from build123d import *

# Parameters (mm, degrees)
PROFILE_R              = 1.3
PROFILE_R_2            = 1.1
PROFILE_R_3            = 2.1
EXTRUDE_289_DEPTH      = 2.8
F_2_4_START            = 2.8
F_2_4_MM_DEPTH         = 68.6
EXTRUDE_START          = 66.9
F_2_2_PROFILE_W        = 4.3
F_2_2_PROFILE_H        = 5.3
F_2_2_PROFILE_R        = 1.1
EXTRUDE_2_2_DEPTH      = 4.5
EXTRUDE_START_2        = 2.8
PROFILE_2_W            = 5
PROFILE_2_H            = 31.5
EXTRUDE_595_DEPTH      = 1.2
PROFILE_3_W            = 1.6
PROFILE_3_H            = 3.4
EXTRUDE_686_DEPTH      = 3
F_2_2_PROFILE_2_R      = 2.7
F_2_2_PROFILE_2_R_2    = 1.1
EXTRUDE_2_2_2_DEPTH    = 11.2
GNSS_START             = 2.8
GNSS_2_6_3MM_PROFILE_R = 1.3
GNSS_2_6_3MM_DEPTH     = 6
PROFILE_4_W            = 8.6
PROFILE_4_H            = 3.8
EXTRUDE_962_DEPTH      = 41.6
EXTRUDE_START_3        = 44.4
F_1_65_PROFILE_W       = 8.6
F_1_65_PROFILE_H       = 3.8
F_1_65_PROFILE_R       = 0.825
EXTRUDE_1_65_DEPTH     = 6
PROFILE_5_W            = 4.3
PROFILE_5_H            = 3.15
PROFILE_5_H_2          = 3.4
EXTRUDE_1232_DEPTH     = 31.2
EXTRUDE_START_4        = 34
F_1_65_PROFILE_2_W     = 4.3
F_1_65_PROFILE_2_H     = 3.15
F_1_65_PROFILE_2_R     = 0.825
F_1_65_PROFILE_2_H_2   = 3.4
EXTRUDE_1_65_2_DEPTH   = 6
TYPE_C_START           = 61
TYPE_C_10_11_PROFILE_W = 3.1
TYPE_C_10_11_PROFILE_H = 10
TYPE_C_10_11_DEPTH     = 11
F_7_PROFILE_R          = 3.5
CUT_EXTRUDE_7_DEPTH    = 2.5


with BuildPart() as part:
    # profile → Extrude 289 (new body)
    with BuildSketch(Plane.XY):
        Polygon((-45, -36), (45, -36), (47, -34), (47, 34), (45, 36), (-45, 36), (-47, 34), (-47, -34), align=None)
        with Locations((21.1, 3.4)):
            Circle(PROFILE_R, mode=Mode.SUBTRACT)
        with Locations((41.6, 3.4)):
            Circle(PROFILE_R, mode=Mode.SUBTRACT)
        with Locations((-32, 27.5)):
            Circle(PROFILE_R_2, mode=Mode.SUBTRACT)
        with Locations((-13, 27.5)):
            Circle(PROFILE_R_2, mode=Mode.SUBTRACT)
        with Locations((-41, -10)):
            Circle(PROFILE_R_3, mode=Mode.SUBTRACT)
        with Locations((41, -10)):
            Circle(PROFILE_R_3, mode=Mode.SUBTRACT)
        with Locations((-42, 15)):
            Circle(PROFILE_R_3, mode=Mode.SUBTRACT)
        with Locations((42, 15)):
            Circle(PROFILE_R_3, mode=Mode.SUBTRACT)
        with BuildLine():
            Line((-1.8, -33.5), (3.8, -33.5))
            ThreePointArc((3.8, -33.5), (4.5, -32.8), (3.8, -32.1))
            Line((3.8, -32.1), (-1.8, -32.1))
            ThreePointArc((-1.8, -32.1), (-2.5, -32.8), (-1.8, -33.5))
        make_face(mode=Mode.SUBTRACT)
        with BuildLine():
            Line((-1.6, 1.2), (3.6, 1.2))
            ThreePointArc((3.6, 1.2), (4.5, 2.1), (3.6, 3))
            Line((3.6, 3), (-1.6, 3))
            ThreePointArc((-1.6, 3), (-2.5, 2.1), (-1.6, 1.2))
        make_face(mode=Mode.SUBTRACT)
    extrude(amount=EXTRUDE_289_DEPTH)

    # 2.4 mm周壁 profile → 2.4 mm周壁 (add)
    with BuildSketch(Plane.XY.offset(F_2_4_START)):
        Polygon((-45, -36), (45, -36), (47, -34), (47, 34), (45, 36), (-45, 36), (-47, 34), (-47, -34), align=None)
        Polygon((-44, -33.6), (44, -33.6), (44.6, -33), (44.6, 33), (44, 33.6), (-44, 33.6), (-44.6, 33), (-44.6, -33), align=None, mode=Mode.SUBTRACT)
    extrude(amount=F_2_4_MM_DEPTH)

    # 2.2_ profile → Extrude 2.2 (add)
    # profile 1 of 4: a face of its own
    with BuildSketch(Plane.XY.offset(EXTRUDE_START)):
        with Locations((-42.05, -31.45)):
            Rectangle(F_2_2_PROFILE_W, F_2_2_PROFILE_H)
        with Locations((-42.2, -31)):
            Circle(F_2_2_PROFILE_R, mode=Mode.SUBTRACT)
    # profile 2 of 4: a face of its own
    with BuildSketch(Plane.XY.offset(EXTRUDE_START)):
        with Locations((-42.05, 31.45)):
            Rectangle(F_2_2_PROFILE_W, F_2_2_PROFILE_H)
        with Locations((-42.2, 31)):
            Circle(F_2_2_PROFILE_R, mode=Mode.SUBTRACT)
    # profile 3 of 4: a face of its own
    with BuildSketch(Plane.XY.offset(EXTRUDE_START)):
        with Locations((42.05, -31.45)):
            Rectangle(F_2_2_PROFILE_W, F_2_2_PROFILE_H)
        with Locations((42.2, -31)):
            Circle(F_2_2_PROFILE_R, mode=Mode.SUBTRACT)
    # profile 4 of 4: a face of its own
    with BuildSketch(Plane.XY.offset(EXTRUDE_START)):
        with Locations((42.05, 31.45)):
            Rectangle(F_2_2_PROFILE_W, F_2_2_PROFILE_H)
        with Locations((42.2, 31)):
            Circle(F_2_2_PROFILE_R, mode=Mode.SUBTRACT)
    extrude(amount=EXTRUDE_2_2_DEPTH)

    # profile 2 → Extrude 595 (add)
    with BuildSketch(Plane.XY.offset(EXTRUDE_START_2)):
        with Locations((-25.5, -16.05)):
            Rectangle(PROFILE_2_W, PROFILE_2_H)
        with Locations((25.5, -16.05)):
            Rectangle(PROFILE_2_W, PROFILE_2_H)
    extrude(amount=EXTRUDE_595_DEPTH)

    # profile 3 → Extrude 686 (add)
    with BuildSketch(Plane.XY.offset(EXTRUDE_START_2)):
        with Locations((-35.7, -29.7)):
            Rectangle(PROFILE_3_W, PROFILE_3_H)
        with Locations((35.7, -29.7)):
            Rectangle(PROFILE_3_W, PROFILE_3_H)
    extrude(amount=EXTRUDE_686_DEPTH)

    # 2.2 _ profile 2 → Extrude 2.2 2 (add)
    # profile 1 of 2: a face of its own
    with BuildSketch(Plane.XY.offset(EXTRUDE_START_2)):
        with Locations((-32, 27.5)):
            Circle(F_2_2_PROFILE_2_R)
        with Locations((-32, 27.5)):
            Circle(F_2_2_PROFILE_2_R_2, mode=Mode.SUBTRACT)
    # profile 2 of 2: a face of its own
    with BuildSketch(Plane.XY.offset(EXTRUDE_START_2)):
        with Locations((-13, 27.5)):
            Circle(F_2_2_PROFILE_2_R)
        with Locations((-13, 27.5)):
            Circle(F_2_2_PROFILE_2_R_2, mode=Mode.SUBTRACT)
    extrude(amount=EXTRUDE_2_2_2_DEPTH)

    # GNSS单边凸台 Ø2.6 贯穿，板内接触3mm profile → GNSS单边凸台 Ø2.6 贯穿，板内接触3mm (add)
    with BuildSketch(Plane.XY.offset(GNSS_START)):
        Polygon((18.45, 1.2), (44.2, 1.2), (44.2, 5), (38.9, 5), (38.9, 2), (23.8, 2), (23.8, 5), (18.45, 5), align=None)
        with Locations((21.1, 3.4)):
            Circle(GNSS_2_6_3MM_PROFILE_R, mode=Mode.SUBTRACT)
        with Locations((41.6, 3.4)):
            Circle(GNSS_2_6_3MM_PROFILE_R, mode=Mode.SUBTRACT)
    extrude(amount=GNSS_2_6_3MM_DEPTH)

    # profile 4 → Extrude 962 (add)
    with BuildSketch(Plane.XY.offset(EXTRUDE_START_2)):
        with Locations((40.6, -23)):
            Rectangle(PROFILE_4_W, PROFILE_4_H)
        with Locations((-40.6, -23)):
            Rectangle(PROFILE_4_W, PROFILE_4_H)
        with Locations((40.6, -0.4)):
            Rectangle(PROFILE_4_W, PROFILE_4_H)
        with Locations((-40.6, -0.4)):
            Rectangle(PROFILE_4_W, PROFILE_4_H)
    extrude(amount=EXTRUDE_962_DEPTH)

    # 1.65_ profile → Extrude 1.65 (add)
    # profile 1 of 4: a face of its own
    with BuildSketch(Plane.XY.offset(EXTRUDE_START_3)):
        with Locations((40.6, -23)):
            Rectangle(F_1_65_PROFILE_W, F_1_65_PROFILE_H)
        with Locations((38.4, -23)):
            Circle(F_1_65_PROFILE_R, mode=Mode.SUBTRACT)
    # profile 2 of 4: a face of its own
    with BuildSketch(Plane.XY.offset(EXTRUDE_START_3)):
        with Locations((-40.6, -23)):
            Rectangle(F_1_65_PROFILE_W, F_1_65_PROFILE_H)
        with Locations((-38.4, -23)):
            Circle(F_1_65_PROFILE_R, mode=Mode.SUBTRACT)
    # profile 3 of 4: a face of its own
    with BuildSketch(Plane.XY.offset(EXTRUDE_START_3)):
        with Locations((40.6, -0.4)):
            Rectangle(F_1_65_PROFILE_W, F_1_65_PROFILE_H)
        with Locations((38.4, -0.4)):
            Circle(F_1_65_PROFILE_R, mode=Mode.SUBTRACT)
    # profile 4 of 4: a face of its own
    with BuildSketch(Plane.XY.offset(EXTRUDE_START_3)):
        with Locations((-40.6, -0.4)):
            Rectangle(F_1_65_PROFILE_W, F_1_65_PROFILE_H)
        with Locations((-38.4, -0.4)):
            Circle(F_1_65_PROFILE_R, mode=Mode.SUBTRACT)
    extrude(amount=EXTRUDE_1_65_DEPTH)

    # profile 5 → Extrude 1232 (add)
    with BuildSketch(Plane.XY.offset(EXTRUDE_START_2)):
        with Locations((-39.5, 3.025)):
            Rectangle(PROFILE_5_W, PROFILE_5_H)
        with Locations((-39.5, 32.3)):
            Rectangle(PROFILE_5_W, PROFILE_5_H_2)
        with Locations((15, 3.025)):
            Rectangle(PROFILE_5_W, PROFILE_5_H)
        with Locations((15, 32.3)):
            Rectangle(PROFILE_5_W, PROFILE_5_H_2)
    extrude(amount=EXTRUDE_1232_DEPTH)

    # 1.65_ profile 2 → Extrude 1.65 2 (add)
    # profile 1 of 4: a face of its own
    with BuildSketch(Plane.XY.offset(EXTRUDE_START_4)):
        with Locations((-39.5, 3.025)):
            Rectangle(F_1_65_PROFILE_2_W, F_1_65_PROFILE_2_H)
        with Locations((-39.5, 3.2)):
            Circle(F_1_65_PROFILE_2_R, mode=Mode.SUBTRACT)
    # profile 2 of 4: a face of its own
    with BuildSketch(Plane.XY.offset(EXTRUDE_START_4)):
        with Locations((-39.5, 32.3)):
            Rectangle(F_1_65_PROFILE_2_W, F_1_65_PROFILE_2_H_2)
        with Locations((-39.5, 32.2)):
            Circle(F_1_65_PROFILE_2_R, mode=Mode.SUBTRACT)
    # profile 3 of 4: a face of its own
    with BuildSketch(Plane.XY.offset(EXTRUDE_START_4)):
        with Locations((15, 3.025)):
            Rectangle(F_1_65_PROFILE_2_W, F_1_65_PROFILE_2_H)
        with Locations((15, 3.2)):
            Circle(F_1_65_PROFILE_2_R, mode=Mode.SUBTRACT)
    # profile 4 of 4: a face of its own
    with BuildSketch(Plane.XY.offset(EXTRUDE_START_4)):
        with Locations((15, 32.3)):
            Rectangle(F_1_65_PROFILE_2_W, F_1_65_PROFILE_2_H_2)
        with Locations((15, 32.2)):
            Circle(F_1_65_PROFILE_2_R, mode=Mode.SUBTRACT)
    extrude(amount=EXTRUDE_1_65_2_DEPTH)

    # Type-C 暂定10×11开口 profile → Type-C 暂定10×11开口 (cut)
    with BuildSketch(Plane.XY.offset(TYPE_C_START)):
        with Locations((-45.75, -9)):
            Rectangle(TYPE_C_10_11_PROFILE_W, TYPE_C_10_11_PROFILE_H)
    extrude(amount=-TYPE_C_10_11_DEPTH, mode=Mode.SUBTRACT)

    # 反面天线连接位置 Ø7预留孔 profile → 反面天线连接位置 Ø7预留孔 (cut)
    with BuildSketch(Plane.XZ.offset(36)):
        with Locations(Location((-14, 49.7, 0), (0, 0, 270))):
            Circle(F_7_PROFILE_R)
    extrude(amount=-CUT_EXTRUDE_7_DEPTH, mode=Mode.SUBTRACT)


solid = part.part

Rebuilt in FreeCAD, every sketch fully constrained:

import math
import FreeCAD as App
import Part
import Sketcher

V = App.Vector


def add_polygon(sketch, points):
    """Adds a closed chain of lines whose ends are joined by coincident constraints."""
    first, n = sketch.GeometryCount, len(points)
    for a, b in zip(points, points[1:] + points[:1]):
        sketch.addGeometry(Part.LineSegment(App.Vector(*a, 0), App.Vector(*b, 0)), False)
    for i in range(n):
        sketch.addConstraint(Sketcher.Constraint("Coincident", first + i, 2, first + (i + 1) % n, 1))

doc = App.newDocument("Part")
body = doc.addObject("PartDesign::Body", "Body")

# Sketch on XY plane
sketch1 = body.newObject("Sketcher::SketchObject", "Sketch")
sketch1.AttachmentSupport = (doc.getObject("XY_Plane"), [""])
sketch1.MapMode = "FlatFace"
add_polygon(sketch1, [(-45, -36), (45, -36), (47, -34), (47, 34), (45, 36), (-45, 36), (-47, 34), (-47, -34)])  # lines 0-7
sketch1.addGeometry(Part.Circle(V(-41, -10, 0), V(0, 0, 1), 2.1), False)  # 8
sketch1.addGeometry(Part.LineSegment(V(3.8, -33.5, 0), V(-1.8, -33.5, 0)), False)  # 9
sketch1.addGeometry(Part.ArcOfCircle(Part.Circle(V(-1.8, -32.8, 0), V(0, 0, 1), 0.7), math.radians(90), math.radians(270)), False)  # 10
sketch1.addGeometry(Part.LineSegment(V(-1.8, -32.1, 0), V(3.8, -32.1, 0)), False)  # 11
sketch1.addGeometry(Part.ArcOfCircle(Part.Circle(V(3.8, -32.8, 0), V(0, 0, 1), 0.7), math.radians(-90), math.radians(90)), False)  # 12
sketch1.addGeometry(Part.Circle(V(41, -10, 0), V(0, 0, 1), 2.1), False)  # 13
sketch1.addGeometry(Part.Circle(V(-42, 15, 0), V(0, 0, 1), 2.1), False)  # 14
sketch1.addGeometry(Part.Circle(V(-32, 27.5, 0), V(0, 0, 1), 1.1), False)  # 15
sketch1.addGeometry(Part.Circle(V(-13, 27.5, 0), V(0, 0, 1), 1.1), False)  # 16
sketch1.addGeometry(Part.LineSegment(V(3.6, 1.2, 0), V(-1.6, 1.2, 0)), False)  # 17
sketch1.addGeometry(Part.ArcOfCircle(Part.Circle(V(-1.6, 2.1, 0), V(0, 0, 1), 0.9), math.radians(90), math.radians(270)), False)  # 18
sketch1.addGeometry(Part.LineSegment(V(-1.6, 3, 0), V(3.6, 3, 0)), False)  # 19
sketch1.addGeometry(Part.ArcOfCircle(Part.Circle(V(3.6, 2.1, 0), V(0, 0, 1), 0.9), math.radians(-90), math.radians(90)), False)  # 20
sketch1.addGeometry(Part.Circle(V(21.1, 3.4, 0), V(0, 0, 1), 1.3), False)  # 21
sketch1.addGeometry(Part.Circle(V(41.6, 3.4, 0), V(0, 0, 1), 1.3), False)  # 22
sketch1.addGeometry(Part.Circle(V(42, 15, 0), V(0, 0, 1), 2.1), False)  # 23
sketch1.addConstraint([
    Sketcher.Constraint("Tangent", 9, 2, 10, 2),
    Sketcher.Constraint("Tangent", 10, 1, 11, 1),
    Sketcher.Constraint("Tangent", 11, 2, 12, 2),
    Sketcher.Constraint("Tangent", 12, 1, 9, 1),
    Sketcher.Constraint("Tangent", 17, 2, 18, 2),
    Sketcher.Constraint("Tangent", 18, 1, 19, 1),
    Sketcher.Constraint("Tangent", 19, 2, 20, 2),
    Sketcher.Constraint("Tangent", 20, 1, 17, 1),
    Sketcher.Constraint("Horizontal", 0),
    Sketcher.Constraint("Vertical", 2),
    Sketcher.Constraint("Horizontal", 4),
    Sketcher.Constraint("Vertical", 6),
    Sketcher.Constraint("Horizontal", 9),
    Sketcher.Constraint("Horizontal", 11),
    Sketcher.Constraint("Horizontal", 17),
    Sketcher.Constraint("Horizontal", 19),
    Sketcher.Constraint("Equal", 8, 13),
    Sketcher.Constraint("Equal", 13, 14),
    Sketcher.Constraint("Equal", 15, 16),
    Sketcher.Constraint("Equal", 21, 22),
    Sketcher.Constraint("Equal", 14, 23),
    Sketcher.Constraint("Symmetric", 0, 2, 4, 2, -1, 1),
    Sketcher.Constraint("Symmetric", 1, 2, 5, 2, -1, 1),
    Sketcher.Constraint("Symmetric", 8, 3, 13, 3, -2),
    Sketcher.Constraint("Symmetric", 14, 3, 23, 3, -2),
    Sketcher.Constraint("Perpendicular", 1, 3),
    Sketcher.Constraint("Perpendicular", 5, 7),
    Sketcher.Constraint("Horizontal", 15, 3, 16, 3),
    Sketcher.Constraint("Horizontal", 21, 3, 22, 3),
    Sketcher.Constraint("Horizontal", 2, 2, 5, 2),
    Sketcher.Constraint("Horizontal", 1, 2, 6, 2),
    Sketcher.Constraint("Vertical", 0, 2, 3, 2),
    Sketcher.Constraint("Diameter", 8, 4.2),
    Sketcher.Constraint("Diameter", 15, 2.2),
    Sketcher.Constraint("Diameter", 21, 2.6),
    Sketcher.Constraint("Radius", 10, 0.7),
    Sketcher.Constraint("Radius", 18, 0.9),
    Sketcher.Constraint("DistanceX", 0, 1, 0, 2, 90.0),
    Sketcher.Constraint("DistanceY", 2, 1, 2, 2, 68.0),
    Sketcher.Constraint("DistanceX", 9, 2, 9, 1, 5.6),
    Sketcher.Constraint("DistanceX", 17, 2, 17, 1, 5.2),
    Sketcher.Constraint("DistanceX", 8, 3, -1, 1, 41.0),
    Sketcher.Constraint("DistanceY", 8, 3, -1, 1, 10.0),
    Sketcher.Constraint("DistanceX", 14, 3, -1, 1, 42.0),
    Sketcher.Constraint("DistanceY", -1, 1, 14, 3, 15.0),
    Sketcher.Constraint("DistanceX", 15, 3, -1, 1, 32.0),
    Sketcher.Constraint("DistanceX", 16, 3, -1, 1, 13.0),
    Sketcher.Constraint("DistanceY", 0, 2, -1, 1, 36.0),
    Sketcher.Constraint("DistanceY", -1, 1, 18, 1, 3.0),
    Sketcher.Constraint("DistanceX", 20, 3, 22, 3, 38.0),
    Sketcher.Constraint("DistanceX", 10, 3, -1, 1, 1.8),
    Sketcher.Constraint("DistanceY", 10, 3, -1, 1, 32.8),
    Sketcher.Constraint("DistanceY", -1, 1, 15, 3, 27.5),
    Sketcher.Constraint("DistanceX", 18, 3, -1, 1, 1.6),
    Sketcher.Constraint("DistanceX", -1, 1, 21, 3, 21.1),
    Sketcher.Constraint("DistanceY", -1, 1, 21, 3, 3.4),
])
pad1 = body.newObject("PartDesign::Pad", "Pad")
pad1.Profile = sketch1
pad1.Length = 2.8

# Sketch on XY plane
sketch2 = body.newObject("Sketcher::SketchObject", "Sketch001")
sketch2.AttachmentSupport = (doc.getObject("XY_Plane"), [""])
sketch2.MapMode = "FlatFace"
sketch2.AttachmentOffset = App.Placement(V(0, 0, 2.8), App.Rotation())
add_polygon(sketch2, [(-45, -36), (45, -36), (47, -34), (47, 34), (45, 36), (-45, 36), (-47, 34), (-47, -34)])  # lines 0-7
add_polygon(sketch2, [(44, -33.6), (-44, -33.6), (-44.6, -33), (-44.6, 33), (-44, 33.6), (44, 33.6), (44.6, 33), (44.6, -33)])  # lines 8-15
sketch2.addConstraint([
    Sketcher.Constraint("Horizontal", 0),
    Sketcher.Constraint("Vertical", 2),
    Sketcher.Constraint("Horizontal", 4),
    Sketcher.Constraint("Vertical", 6),
    Sketcher.Constraint("Horizontal", 8),
    Sketcher.Constraint("Vertical", 10),
    Sketcher.Constraint("Horizontal", 12),
    Sketcher.Constraint("Vertical", 14),
    Sketcher.Constraint("Symmetric", 0, 2, 4, 2, -1, 1),
    Sketcher.Constraint("Symmetric", 1, 2, 5, 2, -1, 1),
    Sketcher.Constraint("Symmetric", 8, 2, 12, 2, -1, 1),
    Sketcher.Constraint("Symmetric", 9, 2, 13, 2, -1, 1),
    Sketcher.Constraint("Perpendicular", 1, 3),
    Sketcher.Constraint("Perpendicular", 5, 7),
    Sketcher.Constraint("Parallel", 7, 9),
    Sketcher.Constraint("Perpendicular", 9, 11),
    Sketcher.Constraint("Perpendicular", 13, 15),
    Sketcher.Constraint("Horizontal", 2, 2, 5, 2),
    Sketcher.Constraint("Horizontal", 1, 2, 6, 2),
    Sketcher.Constraint("Horizontal", 10, 2, 13, 2),
    Sketcher.Constraint("Horizontal", 9, 2, 14, 2),
    Sketcher.Constraint("Vertical", 0, 2, 3, 2),
    Sketcher.Constraint("DistanceX", 0, 1, 0, 2, 90.0),
    Sketcher.Constraint("DistanceX", 8, 2, 8, 1, 88.0),
    Sketcher.Constraint("DistanceY", 2, 1, 2, 2, 68.0),
    Sketcher.Constraint("DistanceY", 10, 1, 10, 2, 66.0),
    Sketcher.Constraint("DistanceY", 0, 2, -1, 1, 36.0),
    Sketcher.Constraint("DistanceY", 8, 2, -1, 1, 33.6),
])
pad2 = body.newObject("PartDesign::Pad", "Pad001")
pad2.Profile = sketch2
pad2.Length = 68.6

# Sketch on XY plane
sketch3 = body.newObject("Sketcher::SketchObject", "Sketch002")
sketch3.AttachmentSupport = (doc.getObject("XY_Plane"), [""])
sketch3.MapMode = "FlatFace"
sketch3.AttachmentOffset = App.Placement(V(0, 0, 66.9), App.Rotation())
add_polygon(sketch3, [(-44.2, -28.8), (-44.2, -34.1), (-39.9, -34.1), (-39.9, -28.8)])  # lines 0-3
sketch3.addGeometry(Part.Circle(V(-42.2, -31, 0), V(0, 0, 1), 1.1), False)  # 4
add_polygon(sketch3, [(-44.2, 34.1), (-44.2, 28.8), (-39.9, 28.8), (-39.9, 34.1)])  # lines 5-8
sketch3.addGeometry(Part.Circle(V(-42.2, 31, 0), V(0, 0, 1), 1.1), False)  # 9
add_polygon(sketch3, [(39.9, -28.8), (39.9, -34.1), (44.2, -34.1), (44.2, -28.8)])  # lines 10-13
sketch3.addGeometry(Part.Circle(V(42.2, -31, 0), V(0, 0, 1), 1.1), False)  # 14
add_polygon(sketch3, [(39.9, 34.1), (39.9, 28.8), (44.2, 28.8), (44.2, 34.1)])  # lines 15-18
sketch3.addGeometry(Part.Circle(V(42.2, 31, 0), V(0, 0, 1), 1.1), False)  # 19
sketch3.addConstraint([
    Sketcher.Constraint("Vertical", 0),
    Sketcher.Constraint("Horizontal", 1),
    Sketcher.Constraint("Vertical", 2),
    Sketcher.Constraint("Horizontal", 3),
    Sketcher.Constraint("Vertical", 5),
    Sketcher.Constraint("Horizontal", 6),
    Sketcher.Constraint("Vertical", 7),
    Sketcher.Constraint("Horizontal", 8),
    Sketcher.Constraint("Vertical", 10),
    Sketcher.Constraint("Horizontal", 11),
    Sketcher.Constraint("Vertical", 12),
    Sketcher.Constraint("Horizontal", 13),
    Sketcher.Constraint("Vertical", 15),
    Sketcher.Constraint("Horizontal", 16),
    Sketcher.Constraint("Vertical", 17),
    Sketcher.Constraint("Horizontal", 18),
    Sketcher.Constraint("Equal", 4, 9),
    Sketcher.Constraint("Equal", 9, 14),
    Sketcher.Constraint("Equal", 14, 19),
    Sketcher.Constraint("Symmetric", 9, 3, 14, 3, -1, 1),
    Sketcher.Constraint("Symmetric", 4, 3, 19, 3, -1, 1),
    Sketcher.Constraint("Symmetric", 7, 2, 10, 2, -1, 1),
    Sketcher.Constraint("Symmetric", 5, 2, 12, 2, -1, 1),
    Sketcher.Constraint("Symmetric", 2, 2, 15, 2, -1, 1),
    Sketcher.Constraint("Symmetric", 0, 2, 17, 2, -1, 1),
    Sketcher.Constraint("Symmetric", 4, 3, 14, 3, -2),
    Sketcher.Constraint("Symmetric", 1, 2, 10, 2, -2),
    Sketcher.Constraint("Symmetric", 3, 2, 12, 2, -2),
    Sketcher.Constraint("Diameter", 4, 2.2),
    Sketcher.Constraint("DistanceX", 1, 1, 1, 2, 4.3),
    Sketcher.Constraint("DistanceY", 0, 2, 0, 1, 5.3),
    Sketcher.Constraint("DistanceY", 4, 3, -1, 1, 31.0),
    Sketcher.Constraint("DistanceX", 0, 2, 4, 3, 2.0),
    Sketcher.Constraint("DistanceX", 4, 3, -1, 1, 42.2),
    Sketcher.Constraint("DistanceY", 0, 2, -1, 1, 34.1),
])
pad3 = body.newObject("PartDesign::Pad", "Pad002")
pad3.Profile = sketch3
pad3.Length = 4.5

# Sketch on XY plane
sketch4 = body.newObject("Sketcher::SketchObject", "Sketch003")
sketch4.AttachmentSupport = (doc.getObject("XY_Plane"), [""])
sketch4.MapMode = "FlatFace"
sketch4.AttachmentOffset = App.Placement(V(0, 0, 2.8), App.Rotation())
add_polygon(sketch4, [(-28, -0.3), (-28, -31.8), (-23, -31.8), (-23, -0.3)])  # lines 0-3
add_polygon(sketch4, [(23, -0.3), (23, -31.8), (28, -31.8), (28, -0.3)])  # lines 4-7
sketch4.addConstraint([
    Sketcher.Constraint("Vertical", 0),
    Sketcher.Constraint("Horizontal", 1),
    Sketcher.Constraint("Vertical", 2),
    Sketcher.Constraint("Horizontal", 3),
    Sketcher.Constraint("Vertical", 4),
    Sketcher.Constraint("Horizontal", 5),
    Sketcher.Constraint("Vertical", 6),
    Sketcher.Constraint("Horizontal", 7),
    Sketcher.Constraint("Symmetric", 1, 2, 4, 2, -2),
    Sketcher.Constraint("Symmetric", 3, 2, 6, 2, -2),
    Sketcher.Constraint("DistanceX", 1, 1, 1, 2, 5.0),
    Sketcher.Constraint("DistanceY", 0, 2, 0, 1, 31.5),
    Sketcher.Constraint("DistanceX", 0, 2, -1, 1, 28.0),
    Sketcher.Constraint("DistanceY", 0, 2, -1, 1, 31.8),
])
pad4 = body.newObject("PartDesign::Pad", "Pad003")
pad4.Profile = sketch4
pad4.Length = 1.2

# Sketch on XY plane
sketch5 = body.newObject("Sketcher::SketchObject", "Sketch004")
sketch5.AttachmentSupport = (doc.getObject("XY_Plane"), [""])
sketch5.MapMode = "FlatFace"
sketch5.AttachmentOffset = App.Placement(V(0, 0, 2.8), App.Rotation())
add_polygon(sketch5, [(-36.5, -28), (-36.5, -31.4), (-34.9, -31.4), (-34.9, -28)])  # lines 0-3
add_polygon(sketch5, [(34.9, -28), (34.9, -31.4), (36.5, -31.4), (36.5, -28)])  # lines 4-7
sketch5.addConstraint([
    Sketcher.Constraint("Vertical", 0),
    Sketcher.Constraint("Horizontal", 1),
    Sketcher.Constraint("Vertical", 2),
    Sketcher.Constraint("Horizontal", 3),
    Sketcher.Constraint("Vertical", 4),
    Sketcher.Constraint("Horizontal", 5),
    Sketcher.Constraint("Vertical", 6),
    Sketcher.Constraint("Horizontal", 7),
    Sketcher.Constraint("Symmetric", 1, 2, 4, 2, -2),
    Sketcher.Constraint("Symmetric", 3, 2, 6, 2, -2),
    Sketcher.Constraint("DistanceX", 1, 1, 1, 2, 1.6),
    Sketcher.Constraint("DistanceY", 0, 2, 0, 1, 3.4),
    Sketcher.Constraint("DistanceY", 2, 2, -1, 1, 28.0),
    Sketcher.Constraint("DistanceX", 0, 2, 5, 2, 73.0),
])
pad5 = body.newObject("PartDesign::Pad", "Pad004")
pad5.Profile = sketch5
pad5.Length = 3

# Sketch on XY plane
sketch6 = body.newObject("Sketcher::SketchObject", "Sketch005")
sketch6.AttachmentSupport = (doc.getObject("XY_Plane"), [""])
sketch6.MapMode = "FlatFace"
sketch6.AttachmentOffset = App.Placement(V(0, 0, 2.8), App.Rotation())
sketch6.addGeometry([
    Part.Circle(V(-32, 27.5, 0), V(0, 0, 1), 2.7),
    Part.Circle(V(-32, 27.5, 0), V(0, 0, 1), 1.1),
    Part.Circle(V(-13, 27.5, 0), V(0, 0, 1), 2.7),
    Part.Circle(V(-13, 27.5, 0), V(0, 0, 1), 1.1),
], False)
sketch6.addConstraint([
    Sketcher.Constraint("Coincident", 1, 3, 0, 3),
    Sketcher.Constraint("Coincident", 3, 3, 2, 3),
    Sketcher.Constraint("Equal", 0, 2),
    Sketcher.Constraint("Equal", 1, 3),
    Sketcher.Constraint("Horizontal", 1, 3, 2, 3),
    Sketcher.Constraint("Diameter", 0, 5.4),
    Sketcher.Constraint("Diameter", 1, 2.2),
    Sketcher.Constraint("DistanceX", 0, 3, -1, 1, 32.0),
    Sketcher.Constraint("DistanceX", 2, 3, -1, 1, 13.0),
    Sketcher.Constraint("DistanceY", -1, 1, 0, 3, 27.5),
])
pad6 = body.newObject("PartDesign::Pad", "Pad005")
pad6.Profile = sketch6
pad6.Length = 11.2

# Sketch on XY plane
sketch7 = body.newObject("Sketcher::SketchObject", "Sketch006")
sketch7.AttachmentSupport = (doc.getObject("XY_Plane"), [""])
sketch7.MapMode = "FlatFace"
sketch7.AttachmentOffset = App.Placement(V(0, 0, 2.8), App.Rotation())
add_polygon(sketch7, [(18.45, 1.2), (44.2, 1.2), (44.2, 5), (38.9, 5), (38.9, 2), (23.8, 2), (23.8, 5), (18.45, 5)])  # lines 0-7
sketch7.addGeometry(Part.Circle(V(21.1, 3.4, 0), V(0, 0, 1), 1.3), False)  # 8
sketch7.addGeometry(Part.Circle(V(41.6, 3.4, 0), V(0, 0, 1), 1.3), False)  # 9
sketch7.addConstraint([
    Sketcher.Constraint("Horizontal", 0),
    Sketcher.Constraint("Vertical", 1),
    Sketcher.Constraint("Horizontal", 2),
    Sketcher.Constraint("Vertical", 3),
    Sketcher.Constraint("Horizontal", 4),
    Sketcher.Constraint("Vertical", 5),
    Sketcher.Constraint("Horizontal", 6),
    Sketcher.Constraint("Vertical", 7),
    Sketcher.Constraint("Equal", 8, 9),
    Sketcher.Constraint("Horizontal", 8, 3, 9, 3),
    Sketcher.Constraint("Horizontal", 2, 2, 5, 2),
    Sketcher.Constraint("Diameter", 8, 2.6),
    Sketcher.Constraint("DistanceY", 3, 2, 3, 1, 3.0),
    Sketcher.Constraint("DistanceX", 2, 2, 2, 1, 5.3),
    Sketcher.Constraint("DistanceX", 4, 2, 4, 1, 15.1),
    Sketcher.Constraint("DistanceY", 1, 1, 1, 2, 3.8),
    Sketcher.Constraint("DistanceY", -1, 1, 1, 2, 5.0),
    Sketcher.Constraint("DistanceX", 0, 1, 0, 2, 25.75),
    Sketcher.Constraint("DistanceX", -1, 1, 8, 3, 21.1),
    Sketcher.Constraint("DistanceY", -1, 1, 8, 3, 3.4),
    Sketcher.Constraint("DistanceX", -1, 1, 9, 3, 41.6),
    Sketcher.Constraint("DistanceX", -1, 1, 0, 2, 44.2),
])
pad7 = body.newObject("PartDesign::Pad", "Pad006")
pad7.Profile = sketch7
pad7.Length = 6

# Sketch on XY plane
sketch8 = body.newObject("Sketcher::SketchObject", "Sketch007")
sketch8.AttachmentSupport = (doc.getObject("XY_Plane"), [""])
sketch8.MapMode = "FlatFace"
sketch8.AttachmentOffset = App.Placement(V(0, 0, 2.8), App.Rotation())
add_polygon(sketch8, [(36.3, -21.1), (36.3, -24.9), (44.9, -24.9), (44.9, -21.1)])  # lines 0-3
add_polygon(sketch8, [(-44.9, -21.1), (-44.9, -24.9), (-36.3, -24.9), (-36.3, -21.1)])  # lines 4-7
add_polygon(sketch8, [(36.3, 1.5), (36.3, -2.3), (44.9, -2.3), (44.9, 1.5)])  # lines 8-11
add_polygon(sketch8, [(-44.9, 1.5), (-44.9, -2.3), (-36.3, -2.3), (-36.3, 1.5)])  # lines 12-15
sketch8.addConstraint([
    Sketcher.Constraint("Vertical", 0),
    Sketcher.Constraint("Horizontal", 1),
    Sketcher.Constraint("Vertical", 2),
    Sketcher.Constraint("Horizontal", 3),
    Sketcher.Constraint("Vertical", 4),
    Sketcher.Constraint("Horizontal", 5),
    Sketcher.Constraint("Vertical", 6),
    Sketcher.Constraint("Horizontal", 7),
    Sketcher.Constraint("Vertical", 8),
    Sketcher.Constraint("Horizontal", 9),
    Sketcher.Constraint("Vertical", 10),
    Sketcher.Constraint("Horizontal", 11),
    Sketcher.Constraint("Vertical", 12),
    Sketcher.Constraint("Horizontal", 13),
    Sketcher.Constraint("Vertical", 14),
    Sketcher.Constraint("Horizontal", 15),
    Sketcher.Constraint("Symmetric", 1, 2, 4, 2, -2),
    Sketcher.Constraint("Symmetric", 3, 2, 6, 2, -2),
    Sketcher.Constraint("Symmetric", 9, 2, 12, 2, -2),
    Sketcher.Constraint("Symmetric", 11, 2, 14, 2, -2),
    Sketcher.Constraint("Vertical", 3, 2, 8, 2),
    Sketcher.Constraint("Vertical", 2, 2, 9, 2),
    Sketcher.Constraint("Equal", 6, 8),
    Sketcher.Constraint("DistanceX", 1, 1, 1, 2, 8.6),
    Sketcher.Constraint("DistanceY", 0, 2, 0, 1, 3.8),
    Sketcher.Constraint("DistanceX", -1, 1, 0, 2, 36.3),
    Sketcher.Constraint("DistanceY", 0, 2, -1, 1, 24.9),
    Sketcher.Constraint("DistanceY", 8, 2, -1, 1, 2.3),
])
pad8 = body.newObject("PartDesign::Pad", "Pad007")
pad8.Profile = sketch8
pad8.Length = 41.6

# Sketch on XY plane
sketch9 = body.newObject("Sketcher::SketchObject", "Sketch008")
sketch9.AttachmentSupport = (doc.getObject("XY_Plane"), [""])
sketch9.MapMode = "FlatFace"
sketch9.AttachmentOffset = App.Placement(V(0, 0, 44.4), App.Rotation())
add_polygon(sketch9, [(36.3, -21.1), (36.3, -24.9), (44.9, -24.9), (44.9, -21.1)])  # lines 0-3
sketch9.addGeometry(Part.Circle(V(38.4, -23, 0), V(0, 0, 1), 0.825), False)  # 4
add_polygon(sketch9, [(-44.9, -21.1), (-44.9, -24.9), (-36.3, -24.9), (-36.3, -21.1)])  # lines 5-8
sketch9.addGeometry(Part.Circle(V(-38.4, -23, 0), V(0, 0, 1), 0.825), False)  # 9
add_polygon(sketch9, [(36.3, 1.5), (36.3, -2.3), (44.9, -2.3), (44.9, 1.5)])  # lines 10-13
sketch9.addGeometry(Part.Circle(V(38.4, -0.4, 0), V(0, 0, 1), 0.825), False)  # 14
add_polygon(sketch9, [(-44.9, 1.5), (-44.9, -2.3), (-36.3, -2.3), (-36.3, 1.5)])  # lines 15-18
sketch9.addGeometry(Part.Circle(V(-38.4, -0.4, 0), V(0, 0, 1), 0.825), False)  # 19
sketch9.addConstraint([
    Sketcher.Constraint("Vertical", 0),
    Sketcher.Constraint("Horizontal", 1),
    Sketcher.Constraint("Vertical", 2),
    Sketcher.Constraint("Horizontal", 3),
    Sketcher.Constraint("Vertical", 5),
    Sketcher.Constraint("Horizontal", 6),
    Sketcher.Constraint("Vertical", 7),
    Sketcher.Constraint("Horizontal", 8),
    Sketcher.Constraint("Vertical", 10),
    Sketcher.Constraint("Horizontal", 11),
    Sketcher.Constraint("Vertical", 12),
    Sketcher.Constraint("Horizontal", 13),
    Sketcher.Constraint("Vertical", 15),
    Sketcher.Constraint("Horizontal", 16),
    Sketcher.Constraint("Vertical", 17),
    Sketcher.Constraint("Horizontal", 18),
    Sketcher.Constraint("Equal", 4, 9),
    Sketcher.Constraint("Equal", 9, 14),
    Sketcher.Constraint("Equal", 14, 19),
    Sketcher.Constraint("Symmetric", 4, 3, 9, 3, -2),
    Sketcher.Constraint("Symmetric", 14, 3, 19, 3, -2),
    Sketcher.Constraint("Symmetric", 1, 2, 5, 2, -2),
    Sketcher.Constraint("Symmetric", 3, 2, 7, 2, -2),
    Sketcher.Constraint("Symmetric", 11, 2, 15, 2, -2),
    Sketcher.Constraint("Symmetric", 13, 2, 17, 2, -2),
    Sketcher.Constraint("Vertical", 4, 3, 14, 3),
    Sketcher.Constraint("Vertical", 3, 2, 10, 2),
    Sketcher.Constraint("Vertical", 2, 2, 11, 2),
    Sketcher.Constraint("Equal", 7, 10),
    Sketcher.Constraint("Diameter", 4, 1.65),
    Sketcher.Constraint("DistanceX", 1, 1, 1, 2, 8.6),
    Sketcher.Constraint("DistanceY", 0, 2, 0, 1, 3.8),
    Sketcher.Constraint("DistanceY", 4, 3, -1, 1, 23.0),
    Sketcher.Constraint("DistanceX", -1, 1, 4, 3, 38.4),
    Sketcher.Constraint("DistanceY", 14, 3, -1, 1, 0.4),
    Sketcher.Constraint("DistanceX", -1, 1, 0, 2, 36.3),
    Sketcher.Constraint("DistanceY", 0, 2, -1, 1, 24.9),
    Sketcher.Constraint("DistanceY", 10, 2, -1, 1, 2.3),
])
pad9 = body.newObject("PartDesign::Pad", "Pad008")
pad9.Profile = sketch9
pad9.Length = 6

# Sketch on XY plane
sketch10 = body.newObject("Sketcher::SketchObject", "Sketch009")
sketch10.AttachmentSupport = (doc.getObject("XY_Plane"), [""])
sketch10.MapMode = "FlatFace"
sketch10.AttachmentOffset = App.Placement(V(0, 0, 2.8), App.Rotation())
add_polygon(sketch10, [(-41.65, 4.6), (-41.65, 1.45), (-37.35, 1.45), (-37.35, 4.6)])  # lines 0-3
add_polygon(sketch10, [(-41.65, 34), (-41.65, 30.6), (-37.35, 30.6), (-37.35, 34)])  # lines 4-7
add_polygon(sketch10, [(12.85, 4.6), (12.85, 1.45), (17.15, 1.45), (17.15, 4.6)])  # lines 8-11
add_polygon(sketch10, [(12.85, 34), (12.85, 30.6), (17.15, 30.6), (17.15, 34)])  # lines 12-15
sketch10.addConstraint([
    Sketcher.Constraint("Vertical", 0),
    Sketcher.Constraint("Horizontal", 1),
    Sketcher.Constraint("Vertical", 2),
    Sketcher.Constraint("Horizontal", 3),
    Sketcher.Constraint("Vertical", 4),
    Sketcher.Constraint("Horizontal", 5),
    Sketcher.Constraint("Vertical", 6),
    Sketcher.Constraint("Horizontal", 7),
    Sketcher.Constraint("Vertical", 8),
    Sketcher.Constraint("Horizontal", 9),
    Sketcher.Constraint("Vertical", 10),
    Sketcher.Constraint("Horizontal", 11),
    Sketcher.Constraint("Vertical", 12),
    Sketcher.Constraint("Horizontal", 13),
    Sketcher.Constraint("Vertical", 14),
    Sketcher.Constraint("Horizontal", 15),
    Sketcher.Constraint("Horizontal", 1, 2, 8, 2),
    Sketcher.Constraint("Horizontal", 3, 2, 10, 2),
    Sketcher.Constraint("Horizontal", 5, 2, 12, 2),
    Sketcher.Constraint("Horizontal", 7, 2, 14, 2),
    Sketcher.Constraint("Vertical", 3, 2, 4, 2),
    Sketcher.Constraint("Vertical", 2, 2, 5, 2),
    Sketcher.Constraint("Vertical", 11, 2, 12, 2),
    Sketcher.Constraint("Vertical", 10, 2, 13, 2),
    Sketcher.Constraint("Equal", 7, 9),
    Sketcher.Constraint("DistanceX", 1, 1, 1, 2, 4.3),
    Sketcher.Constraint("DistanceY", 4, 2, 4, 1, 3.4),
    Sketcher.Constraint("DistanceY", -1, 1, 6, 2, 34.0),
    Sketcher.Constraint("DistanceY", 3, 2, 4, 2, 26.0),
    Sketcher.Constraint("DistanceY", 0, 2, 0, 1, 3.15),
    Sketcher.Constraint("DistanceX", 1, 2, 8, 2, 50.2),
    Sketcher.Constraint("DistanceX", 0, 2, -1, 1, 41.65),
])
pad10 = body.newObject("PartDesign::Pad", "Pad009")
pad10.Profile = sketch10
pad10.Length = 31.2

# Sketch on XY plane
sketch11 = body.newObject("Sketcher::SketchObject", "Sketch010")
sketch11.AttachmentSupport = (doc.getObject("XY_Plane"), [""])
sketch11.MapMode = "FlatFace"
sketch11.AttachmentOffset = App.Placement(V(0, 0, 34), App.Rotation())
add_polygon(sketch11, [(-41.65, 4.6), (-41.65, 1.45), (-37.35, 1.45), (-37.35, 4.6)])  # lines 0-3
sketch11.addGeometry(Part.Circle(V(-39.5, 3.2, 0), V(0, 0, 1), 0.825), False)  # 4
add_polygon(sketch11, [(-41.65, 34), (-41.65, 30.6), (-37.35, 30.6), (-37.35, 34)])  # lines 5-8
sketch11.addGeometry(Part.Circle(V(-39.5, 32.2, 0), V(0, 0, 1), 0.825), False)  # 9
add_polygon(sketch11, [(12.85, 4.6), (12.85, 1.45), (17.15, 1.45), (17.15, 4.6)])  # lines 10-13
sketch11.addGeometry(Part.Circle(V(15, 3.2, 0), V(0, 0, 1), 0.825), False)  # 14
add_polygon(sketch11, [(12.85, 34), (12.85, 30.6), (17.15, 30.6), (17.15, 34)])  # lines 15-18
sketch11.addGeometry(Part.Circle(V(15, 32.2, 0), V(0, 0, 1), 0.825), False)  # 19
sketch11.addConstraint([
    Sketcher.Constraint("Vertical", 0),
    Sketcher.Constraint("Horizontal", 1),
    Sketcher.Constraint("Vertical", 2),
    Sketcher.Constraint("Horizontal", 3),
    Sketcher.Constraint("Vertical", 5),
    Sketcher.Constraint("Horizontal", 6),
    Sketcher.Constraint("Vertical", 7),
    Sketcher.Constraint("Horizontal", 8),
    Sketcher.Constraint("Vertical", 10),
    Sketcher.Constraint("Horizontal", 11),
    Sketcher.Constraint("Vertical", 12),
    Sketcher.Constraint("Horizontal", 13),
    Sketcher.Constraint("Vertical", 15),
    Sketcher.Constraint("Horizontal", 16),
    Sketcher.Constraint("Vertical", 17),
    Sketcher.Constraint("Horizontal", 18),
    Sketcher.Constraint("Equal", 4, 9),
    Sketcher.Constraint("Equal", 9, 14),
    Sketcher.Constraint("Equal", 14, 19),
    Sketcher.Constraint("Horizontal", 4, 3, 14, 3),
    Sketcher.Constraint("Horizontal", 9, 3, 19, 3),
    Sketcher.Constraint("Horizontal", 1, 2, 10, 2),
    Sketcher.Constraint("Horizontal", 3, 2, 12, 2),
    Sketcher.Constraint("Horizontal", 6, 2, 15, 2),
    Sketcher.Constraint("Horizontal", 8, 2, 17, 2),
    Sketcher.Constraint("Vertical", 4, 3, 9, 3),
    Sketcher.Constraint("Vertical", 14, 3, 19, 3),
    Sketcher.Constraint("Vertical", 3, 2, 5, 2),
    Sketcher.Constraint("Vertical", 2, 2, 6, 2),
    Sketcher.Constraint("Vertical", 13, 2, 15, 2),
    Sketcher.Constraint("Vertical", 12, 2, 16, 2),
    Sketcher.Constraint("Equal", 8, 11),
    Sketcher.Constraint("Diameter", 4, 1.65),
    Sketcher.Constraint("DistanceX", 1, 1, 1, 2, 4.3),
    Sketcher.Constraint("DistanceY", 5, 2, 5, 1, 3.4),
    Sketcher.Constraint("DistanceX", -1, 1, 14, 3, 15.0),
    Sketcher.Constraint("DistanceY", -1, 1, 7, 2, 34.0),
    Sketcher.Constraint("DistanceY", 4, 3, 9, 3, 29.0),
    Sketcher.Constraint("DistanceY", 3, 2, 5, 2, 26.0),
    Sketcher.Constraint("DistanceY", 0, 2, 0, 1, 3.15),
    Sketcher.Constraint("DistanceX", 4, 3, -1, 1, 39.5),
    Sketcher.Constraint("DistanceY", -1, 1, 4, 3, 3.2),
    Sketcher.Constraint("DistanceX", 1, 2, 10, 2, 50.2),
    Sketcher.Constraint("DistanceX", 0, 2, -1, 1, 41.65),
])
pad11 = body.newObject("PartDesign::Pad", "Pad010")
pad11.Profile = sketch11
pad11.Length = 6

# Sketch on XY plane
sketch12 = body.newObject("Sketcher::SketchObject", "Sketch011")
sketch12.AttachmentSupport = (doc.getObject("XY_Plane"), [""])
sketch12.MapMode = "FlatFace"
sketch12.AttachmentOffset = App.Placement(V(0, 0, 61), App.Rotation())
add_polygon(sketch12, [(-47.3, -4), (-47.3, -14), (-44.2, -14), (-44.2, -4)])  # lines 0-3
sketch12.addConstraint([
    Sketcher.Constraint("Vertical", 0),
    Sketcher.Constraint("Horizontal", 1),
    Sketcher.Constraint("Vertical", 2),
    Sketcher.Constraint("Horizontal", 3),
    Sketcher.Constraint("DistanceY", 0, 2, 0, 1, 10.0),
    Sketcher.Constraint("DistanceX", 1, 1, 1, 2, 3.1),
    Sketcher.Constraint("DistanceY", 0, 2, -1, 1, 14.0),
    Sketcher.Constraint("DistanceX", 0, 2, -1, 1, 47.3),
])
pocket1 = body.newObject("PartDesign::Pocket", "Pocket")
pocket1.Profile = sketch12
pocket1.Length = 11

# Sketch on XZ plane
sketch13 = body.newObject("Sketcher::SketchObject", "Sketch012")
sketch13.AttachmentSupport = (doc.getObject("XZ_Plane"), [""])
sketch13.MapMode = "FlatFace"
sketch13.AttachmentOffset = App.Placement(V(0, 0, 36), App.Rotation())
sketch13.addGeometry(Part.Circle(V(-14, 49.7, 0), V(0, 0, 1), 3.5), False)
sketch13.addConstraint([
    Sketcher.Constraint("Diameter", 0, 7.0),
    Sketcher.Constraint("DistanceX", 0, 3, -1, 1, 14.0),
    Sketcher.Constraint("DistanceY", -1, 1, 0, 3, 49.7),
])
pocket2 = body.newObject("PartDesign::Pocket", "Pocket001")
pocket2.Profile = sketch13
pocket2.Length = 2.5

doc.recompute()
